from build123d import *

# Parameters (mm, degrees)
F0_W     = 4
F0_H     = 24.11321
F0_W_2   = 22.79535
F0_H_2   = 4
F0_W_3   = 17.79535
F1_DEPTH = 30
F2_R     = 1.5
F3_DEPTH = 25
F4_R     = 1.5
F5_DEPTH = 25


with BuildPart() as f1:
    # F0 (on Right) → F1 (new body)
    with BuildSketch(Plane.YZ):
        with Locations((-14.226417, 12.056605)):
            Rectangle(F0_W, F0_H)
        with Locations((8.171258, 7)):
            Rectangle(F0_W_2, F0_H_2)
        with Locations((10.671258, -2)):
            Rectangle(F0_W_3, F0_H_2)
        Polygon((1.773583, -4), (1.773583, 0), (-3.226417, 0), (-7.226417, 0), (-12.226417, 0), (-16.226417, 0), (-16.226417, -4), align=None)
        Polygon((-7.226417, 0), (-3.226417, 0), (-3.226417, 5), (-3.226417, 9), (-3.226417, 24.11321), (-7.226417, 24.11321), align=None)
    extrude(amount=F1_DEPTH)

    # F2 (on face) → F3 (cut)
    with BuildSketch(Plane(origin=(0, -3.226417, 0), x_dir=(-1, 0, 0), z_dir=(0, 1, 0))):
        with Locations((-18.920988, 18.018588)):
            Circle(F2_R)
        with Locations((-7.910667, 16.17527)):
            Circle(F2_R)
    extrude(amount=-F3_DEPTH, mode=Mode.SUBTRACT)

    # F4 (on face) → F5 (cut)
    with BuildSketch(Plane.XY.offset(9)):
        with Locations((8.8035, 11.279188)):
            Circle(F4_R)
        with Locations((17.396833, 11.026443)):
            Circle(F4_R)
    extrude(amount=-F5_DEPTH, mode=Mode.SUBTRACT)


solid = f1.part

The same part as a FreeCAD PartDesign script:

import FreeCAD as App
import Part
import Sketcher

V = App.Vector

doc = App.newDocument("Part")
body = doc.addObject("PartDesign::Body", "Body")

sketch1 = body.newObject("Sketcher::SketchObject", "Sketch")
sketch1.AttachmentSupport = (doc.getObject("YZ_Plane"), [""])
sketch1.MapMode = "FlatFace"
sketch1.addGeometry([
    Part.LineSegment(V(-16.2, 24.1, 0), V(-16.2, -4, 0)),
    Part.LineSegment(V(-16.2, -4, 0), V(19.6, -4, 0)),
    Part.LineSegment(V(19.6, -4, 0), V(19.6, 0, 0)),
    Part.LineSegment(V(19.6, 0, 0), V(-3.2, 0, 0)),
    Part.LineSegment(V(-3.2, 0, 0), V(-3.2, 5, 0)),
    Part.LineSegment(V(-3.2, 5, 0), V(19.6, 5, 0)),
    Part.LineSegment(V(19.6, 5, 0), V(19.6, 9, 0)),
    Part.LineSegment(V(19.6, 9, 0), V(-3.2, 9, 0)),
    Part.LineSegment(V(-3.2, 9, 0), V(-3.2, 24.1, 0)),
    Part.LineSegment(V(-3.2, 24.1, 0), V(-7.2, 24.1, 0)),
    Part.LineSegment(V(-7.2, 24.1, 0), V(-7.2, 0, 0)),
    Part.LineSegment(V(-7.2, 0, 0), V(-12.2, 0, 0)),
    Part.LineSegment(V(-12.2, 0, 0), V(-12.2, 24.1, 0)),
    Part.LineSegment(V(-12.2, 24.1, 0), V(-16.2, 24.1, 0)),
], False)
sketch1.addConstraint([
    Sketcher.Constraint("Coincident", 0, 2, 1, 1),
    Sketcher.Constraint("Coincident", 1, 2, 2, 1),
    Sketcher.Constraint("Coincident", 2, 2, 3, 1),
    Sketcher.Constraint("Coincident", 3, 2, 4, 1),
    Sketcher.Constraint("Coincident", 4, 2, 5, 1),
    Sketcher.Constraint("Coincident", 5, 2, 6, 1),
    Sketcher.Constraint("Coincident", 6, 2, 7, 1),
    Sketcher.Constraint("Coincident", 7, 2, 8, 1),
    Sketcher.Constraint("Coincident", 8, 2, 9, 1),
    Sketcher.Constraint("Coincident", 9, 2, 10, 1),
    Sketcher.Constraint("Coincident", 10, 2, 11, 1),
    Sketcher.Constraint("Coincident", 11, 2, 12, 1),
    Sketcher.Constraint("Coincident", 12, 2, 13, 1),
    Sketcher.Constraint("Coincident", 13, 2, 0, 1),
    Sketcher.Constraint("Vertical", 0),
    Sketcher.Constraint("Horizontal", 1),
    Sketcher.Constraint("Vertical", 2),
    Sketcher.Constraint("Horizontal", 3),
    Sketcher.Constraint("Vertical", 4),
    Sketcher.Constraint("Horizontal", 5),
    Sketcher.Constraint("Vertical", 6),
    Sketcher.Constraint("Horizontal", 7),
    Sketcher.Constraint("Vertical", 8),
    Sketcher.Constraint("Horizontal", 9),
    Sketcher.Constraint("Vertical", 10),
    Sketcher.Constraint("Horizontal", 11),
    Sketcher.Constraint("Vertical", 12),
    Sketcher.Constraint("Horizontal", 13),
    Sketcher.Constraint("PointOnObject", 2, 2, -1),
    Sketcher.Constraint("PointOnObject", 10, 2, -1),
    Sketcher.Constraint("Horizontal", 9, 2, 12, 2),
    Sketcher.Constraint("Vertical", 2, 2, 5, 2),
    Sketcher.Constraint("Vertical", 4, 2, 7, 2),
    Sketcher.Constraint("Equal", 9, 13),
    Sketcher.Constraint("Equal", 13, 2),
    Sketcher.Constraint("Equal", 11, 4),
    Sketcher.Constraint("Equal", 2, 6),
    Sketcher.Constraint("DistanceX", 9, 2, 9, 1, 4.0),
    Sketcher.Constraint("DistanceX", 11, 2, 11, 1, 5.0),
    Sketcher.Constraint("DistanceX", 1, 1, 1, 2, 35.79535),
    Sketcher.Constraint("DistanceY", 0, 2, 0, 1, 28.11321),
    Sketcher.Constraint("DistanceX", 0, 2, -1, 1, 16.226417),
])
pad1 = body.newObject("PartDesign::Pad", "Pad")
pad1.Profile = sketch1
pad1.Length = 30

sketch2 = body.newObject("Sketcher::SketchObject", "Sketch001")
sketch2.AttachmentSupport = (doc.getObject("XZ_Plane"), [""])
sketch2.MapMode = "FlatFace"
sketch2.AttachmentOffset = App.Placement(V(0, 0, 3.226417), App.Rotation())
sketch2.addGeometry([
    Part.Circle(V(18.9, 18, 0), V(0, 0, 1), 1.5),
    Part.Circle(V(7.9, 16.2, 0), V(0, 0, 1), 1.5),
], False)
sketch2.addConstraint([
    Sketcher.Constraint("Equal", 0, 1),
    Sketcher.Constraint("Diameter", 0, 3.0),
    Sketcher.Constraint("DistanceX", -1, 1, 0, 3, 18.920988),
    Sketcher.Constraint("DistanceY", -1, 1, 0, 3, 18.018588),
    Sketcher.Constraint("DistanceY", -1, 1, 1, 3, 16.17527),
    Sketcher.Constraint("DistanceX", 1, 3, 0, 3, 11.010321),
])
pocket1 = body.newObject("PartDesign::Pocket", "Pocket")
pocket1.Profile = sketch2
pocket1.Length = 25
pocket1.Reversed = True

sketch3 = body.newObject("Sketcher::SketchObject", "Sketch002")
sketch3.AttachmentSupport = (doc.getObject("XY_Plane"), [""])
sketch3.MapMode = "FlatFace"
sketch3.AttachmentOffset = App.Placement(V(0, 0, 9), App.Rotation())
sketch3.addGeometry([
    Part.Circle(V(8.8, 11.3, 0), V(0, 0, 1), 1.5),
    Part.Circle(V(17.4, 11, 0), V(0, 0, 1), 1.5),
], False)
sketch3.addConstraint([
    Sketcher.Constraint("Equal", 0, 1),
    Sketcher.Constraint("Diameter", 0, 3.0),
    Sketcher.Constraint("DistanceX", -1, 1, 0, 3, 8.8035),
    Sketcher.Constraint("DistanceY", -1, 1, 0, 3, 11.279188),
    Sketcher.Constraint("DistanceX", -1, 1, 1, 3, 17.396833),
    Sketcher.Constraint("DistanceY", -1, 1, 1, 3, 11.026443),
])
pocket2 = body.newObject("PartDesign::Pocket", "Pocket001")
pocket2.Profile = sketch3
pocket2.Length = 25

doc.recompute()
